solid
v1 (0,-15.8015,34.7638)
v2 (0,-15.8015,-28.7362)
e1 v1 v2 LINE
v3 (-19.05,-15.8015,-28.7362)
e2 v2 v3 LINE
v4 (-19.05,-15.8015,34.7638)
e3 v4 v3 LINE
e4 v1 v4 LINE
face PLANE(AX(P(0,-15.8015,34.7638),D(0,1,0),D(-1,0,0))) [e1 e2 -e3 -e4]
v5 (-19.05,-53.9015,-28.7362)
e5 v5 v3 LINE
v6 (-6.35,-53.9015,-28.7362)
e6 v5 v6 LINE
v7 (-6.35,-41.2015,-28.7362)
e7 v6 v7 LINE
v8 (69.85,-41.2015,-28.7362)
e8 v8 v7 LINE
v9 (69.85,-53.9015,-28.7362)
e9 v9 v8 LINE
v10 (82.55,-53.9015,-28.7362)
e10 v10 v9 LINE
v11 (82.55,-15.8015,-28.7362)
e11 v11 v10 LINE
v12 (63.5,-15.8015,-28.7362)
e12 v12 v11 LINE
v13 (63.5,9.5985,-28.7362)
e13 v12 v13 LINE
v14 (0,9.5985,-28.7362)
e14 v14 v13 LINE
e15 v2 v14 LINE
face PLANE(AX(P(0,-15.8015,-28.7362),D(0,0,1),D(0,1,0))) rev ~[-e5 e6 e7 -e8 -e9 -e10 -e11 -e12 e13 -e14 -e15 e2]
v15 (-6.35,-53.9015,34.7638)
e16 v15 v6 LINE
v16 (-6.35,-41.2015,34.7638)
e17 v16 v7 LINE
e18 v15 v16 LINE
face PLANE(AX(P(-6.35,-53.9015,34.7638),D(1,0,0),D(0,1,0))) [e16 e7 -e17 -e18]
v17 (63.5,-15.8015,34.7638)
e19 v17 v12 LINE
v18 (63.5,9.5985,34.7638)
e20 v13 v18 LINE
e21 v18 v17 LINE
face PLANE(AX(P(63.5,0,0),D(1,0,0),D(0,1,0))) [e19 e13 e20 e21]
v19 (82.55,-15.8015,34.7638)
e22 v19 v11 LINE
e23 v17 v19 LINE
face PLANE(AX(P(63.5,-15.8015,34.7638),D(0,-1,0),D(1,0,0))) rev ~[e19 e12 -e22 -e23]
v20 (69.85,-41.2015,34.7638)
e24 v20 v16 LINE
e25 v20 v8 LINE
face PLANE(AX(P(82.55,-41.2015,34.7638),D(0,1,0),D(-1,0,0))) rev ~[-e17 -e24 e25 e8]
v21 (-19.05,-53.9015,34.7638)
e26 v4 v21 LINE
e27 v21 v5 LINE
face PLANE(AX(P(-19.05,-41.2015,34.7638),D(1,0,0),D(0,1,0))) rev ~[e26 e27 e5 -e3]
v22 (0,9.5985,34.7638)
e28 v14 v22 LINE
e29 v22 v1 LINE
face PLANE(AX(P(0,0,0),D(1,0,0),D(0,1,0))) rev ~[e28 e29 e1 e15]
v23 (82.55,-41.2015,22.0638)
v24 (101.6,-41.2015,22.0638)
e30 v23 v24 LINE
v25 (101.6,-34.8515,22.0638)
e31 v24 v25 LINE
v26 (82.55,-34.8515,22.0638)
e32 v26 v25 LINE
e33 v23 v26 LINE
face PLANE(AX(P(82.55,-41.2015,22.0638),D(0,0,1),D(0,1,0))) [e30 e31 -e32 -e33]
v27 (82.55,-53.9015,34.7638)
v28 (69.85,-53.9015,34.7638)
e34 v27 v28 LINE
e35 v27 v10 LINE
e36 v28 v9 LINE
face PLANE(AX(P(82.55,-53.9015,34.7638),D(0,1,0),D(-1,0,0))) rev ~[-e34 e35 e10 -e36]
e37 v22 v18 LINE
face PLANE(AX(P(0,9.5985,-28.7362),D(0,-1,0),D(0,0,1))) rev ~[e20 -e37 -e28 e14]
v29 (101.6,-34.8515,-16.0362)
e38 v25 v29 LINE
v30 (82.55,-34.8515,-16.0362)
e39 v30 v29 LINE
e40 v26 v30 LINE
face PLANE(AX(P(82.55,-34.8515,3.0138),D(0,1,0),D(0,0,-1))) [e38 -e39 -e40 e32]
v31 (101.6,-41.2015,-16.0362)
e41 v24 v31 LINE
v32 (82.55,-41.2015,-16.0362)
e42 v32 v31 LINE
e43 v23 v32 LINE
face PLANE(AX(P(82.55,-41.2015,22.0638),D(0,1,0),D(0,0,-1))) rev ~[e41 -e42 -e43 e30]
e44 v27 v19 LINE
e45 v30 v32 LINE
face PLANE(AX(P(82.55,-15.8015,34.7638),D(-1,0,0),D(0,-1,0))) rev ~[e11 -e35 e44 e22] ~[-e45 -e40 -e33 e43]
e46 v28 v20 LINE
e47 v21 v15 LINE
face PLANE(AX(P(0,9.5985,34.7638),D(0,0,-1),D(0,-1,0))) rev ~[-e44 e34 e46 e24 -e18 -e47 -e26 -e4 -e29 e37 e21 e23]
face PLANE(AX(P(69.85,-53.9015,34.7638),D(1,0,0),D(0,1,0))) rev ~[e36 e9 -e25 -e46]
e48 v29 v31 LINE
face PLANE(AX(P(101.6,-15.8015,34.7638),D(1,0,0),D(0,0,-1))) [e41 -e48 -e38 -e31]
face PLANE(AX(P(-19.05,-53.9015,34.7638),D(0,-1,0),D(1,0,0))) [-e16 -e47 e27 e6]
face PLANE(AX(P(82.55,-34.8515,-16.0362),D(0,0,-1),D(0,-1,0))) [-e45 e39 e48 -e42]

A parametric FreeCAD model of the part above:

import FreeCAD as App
import Part
import Sketcher
Q = App.Units.Quantity

doc = App.newDocument("Part")
body = doc.addObject("PartDesign::Body", "Body")

sketch1 = doc.addObject("Sketcher::SketchObject", "Sketch")
body.addObject(sketch1)
sketch1.AttachmentSupport = (doc.YZ_Plane, [""])
sketch1.MapMode = "FlatFace"
sketch1.addGeometry([
    Part.LineSegment(App.Vector(10, -29, 0), App.Vector(10, 35, 0)),
    Part.LineSegment(App.Vector(10, 35, 0), App.Vector(-16, 35, 0)),
    Part.LineSegment(App.Vector(-16, 35, 0), App.Vector(-16, -29, 0)),
    Part.LineSegment(App.Vector(-16, -29, 0), App.Vector(10, -29, 0)),
], False)
sketch1.addConstraint([
    Sketcher.Constraint("Coincident", 0, 2, 1, 1),
    Sketcher.Constraint("Coincident", 1, 2, 2, 1),
    Sketcher.Constraint("Coincident", 2, 2, 3, 1),
    Sketcher.Constraint("Coincident", 3, 2, 0, 1),
    Sketcher.Constraint("Vertical", 0),
    Sketcher.Constraint("Horizontal", 1),
    Sketcher.Constraint("Vertical", 2),
    Sketcher.Constraint("Horizontal", 3),
    Sketcher.Constraint("DistanceX", 1, 2, 1, 1, Q("1 in")),
    Sketcher.Constraint("DistanceY", 0, 1, 0, 2, Q("2.5 in")),
    Sketcher.Constraint("DistanceX", -1, 1, 0, 2, Q("0.3779 in")),
    Sketcher.Constraint("DistanceY", -1, 1, 0, 2, 34.7638),
])
pad1 = doc.addObject("PartDesign::Pad", "Pad")
body.addObject(pad1)
pad1.Profile = sketch1
pad1.Length = Q("2.5 in")

sketch2 = doc.addObject("Sketcher::SketchObject", "Sketch001")
body.addObject(sketch2)
sketch2.AttachmentSupport = (doc.XY_Plane, [""])
sketch2.MapMode = "FlatFace"
sketch2.AttachmentOffset = App.Placement(App.Vector(0, 0, 34.7638), App.Rotation())
sketch2.addGeometry([
    Part.LineSegment(App.Vector(83, -16, 0), App.Vector(-19, -16, 0)),
    Part.LineSegment(App.Vector(-19, -16, 0), App.Vector(-19, -41, 0)),
    Part.LineSegment(App.Vector(-19, -41, 0), App.Vector(83, -41, 0)),
    Part.LineSegment(App.Vector(83, -41, 0), App.Vector(83, -16, 0)),
], False)
sketch2.addConstraint([
    Sketcher.Constraint("Coincident", 0, 2, 1, 1),
    Sketcher.Constraint("Coincident", 1, 2, 2, 1),
    Sketcher.Constraint("Coincident", 2, 2, 3, 1),
    Sketcher.Constraint("Coincident", 3, 2, 0, 1),
    Sketcher.Constraint("Horizontal", 0),
    Sketcher.Constraint("Vertical", 1),
    Sketcher.Constraint("Horizontal", 2),
    Sketcher.Constraint("Vertical", 3),
    Sketcher.Constraint("DistanceX", 0, 2, 0, 1, Q("4 in")),
    Sketcher.Constraint("DistanceY", 1, 2, 1, 1, Q("1 in")),
    Sketcher.Constraint("DistanceX", 0, 2, -1, 1, Q("0.75 in")),
    Sketcher.Constraint("DistanceY", 0, 2, -1, 1, Q("0.6221 in")),
])
pad2 = doc.addObject("PartDesign::Pad", "Pad001")
body.addObject(pad2)
pad2.Profile = sketch2
pad2.Length = Q("2.5 in")
pad2.Reversed = True

sketch3 = doc.addObject("Sketcher::SketchObject", "Sketch002")
body.addObject(sketch3)
sketch3.AttachmentSupport = (doc.XY_Plane, [""])
sketch3.MapMode = "FlatFace"
sketch3.AttachmentOffset = App.Placement(App.Vector(0, 0, 34.7638), App.Rotation())
sketch3.addGeometry([
    Part.LineSegment(App.Vector(83, -54, 0), App.Vector(83, -41, 0)),
    Part.LineSegment(App.Vector(83, -41, 0), App.Vector(70, -41, 0)),
    Part.LineSegment(App.Vector(70, -41, 0), App.Vector(70, -54, 0)),
    Part.LineSegment(App.Vector(70, -54, 0), App.Vector(83, -54, 0)),
    Part.LineSegment(App.Vector(-6, -54, 0), App.Vector(-6, -41, 0)),
    Part.LineSegment(App.Vector(-6, -41, 0), App.Vector(-19, -41, 0)),
    Part.LineSegment(App.Vector(-19, -41, 0), App.Vector(-19, -54, 0)),
    Part.LineSegment(App.Vector(-19, -54, 0), App.Vector(-6, -54, 0)),
], False)
sketch3.addConstraint([
    Sketcher.Constraint("Coincident", 0, 2, 1, 1),
    Sketcher.Constraint("Coincident", 1, 2, 2, 1),
    Sketcher.Constraint("Coincident", 2, 2, 3, 1),
    Sketcher.Constraint("Coincident", 3, 2, 0, 1),
    Sketcher.Constraint("Coincident", 4, 2, 5, 1),
    Sketcher.Constraint("Coincident", 5, 2, 6, 1),
    Sketcher.Constraint("Coincident", 6, 2, 7, 1),
    Sketcher.Constraint("Coincident", 7, 2, 4, 1),
    Sketcher.Constraint("Vertical", 0),
    Sketcher.Constraint("Horizontal", 1),
    Sketcher.Constraint("Vertical", 2),
    Sketcher.Constraint("Horizontal", 3),
    Sketcher.Constraint("Vertical", 4),
    Sketcher.Constraint("Horizontal", 5),
    Sketcher.Constraint("Vertical", 6),
    Sketcher.Constraint("Horizontal", 7),
    Sketcher.Constraint("Horizontal", 1, 2, 4, 2),
    Sketcher.Constraint("Horizontal", 3, 2, 6, 2),
    Sketcher.Constraint("Equal", 3, 5),
    Sketcher.Constraint("Equal", 7, 0),
    Sketcher.Constraint("DistanceX", 1, 2, 1, 1, Q("0.5 in")),
    Sketcher.Constraint("DistanceX", 4, 2, 1, 2, Q("3 in")),
    Sketcher.Constraint("DistanceX", -1, 1, 0, 2, Q("3.25 in")),
    Sketcher.Constraint("DistanceY", 0, 2, -1, 1, Q("1.6221 in")),
])
pad3 = doc.addObject("PartDesign::Pad", "Pad002")
body.addObject(pad3)
pad3.Profile = sketch3
pad3.Length = Q("2.5 in")
pad3.Reversed = True

sketch4 = doc.addObject("Sketcher::SketchObject", "Sketch003")
body.addObject(sketch4)
sketch4.AttachmentSupport = (doc.YZ_Plane, [""])
sketch4.MapMode = "FlatFace"
sketch4.AttachmentOffset = App.Placement(App.Vector(0, 0, 3.25 * 25.4), App.Rotation())
sketch4.addGeometry([
    Part.LineSegment(App.Vector(-35, -16, 0), App.Vector(-35, 22, 0)),
    Part.LineSegment(App.Vector(-35, 22, 0), App.Vector(-41, 22, 0)),
    Part.LineSegment(App.Vector(-41, 22, 0), App.Vector(-41, -16, 0)),
    Part.LineSegment(App.Vector(-41, -16, 0), App.Vector(-35, -16, 0)),
], False)
sketch4.addConstraint([
    Sketcher.Constraint("Coincident", 0, 2, 1, 1),
    Sketcher.Constraint("Coincident", 1, 2, 2, 1),
    Sketcher.Constraint("Coincident", 2, 2, 3, 1),
    Sketcher.Constraint("Coincident", 3, 2, 0, 1),
    Sketcher.Constraint("Vertical", 0),
    Sketcher.Constraint("Horizontal", 1),
    Sketcher.Constraint("Vertical", 2),
    Sketcher.Constraint("Horizontal", 3),
    Sketcher.Constraint("DistanceY", 0, 1, 0, 2, Q("1.5 in")),
    Sketcher.Constraint("DistanceX", 1, 2, 1, 1, Q("0.25 in")),
    Sketcher.Constraint("DistanceX", 0, 2, -1, 1, Q("1.3721 in")),
    Sketcher.Constraint("DistanceY", -1, 1, 0, 2, 22.0638),
])
pad4 = doc.addObject("PartDesign::Pad", "Pad003")
body.addObject(pad4)
pad4.Profile = sketch4
pad4.Length = Q("0.75 in")

doc.recompute()
